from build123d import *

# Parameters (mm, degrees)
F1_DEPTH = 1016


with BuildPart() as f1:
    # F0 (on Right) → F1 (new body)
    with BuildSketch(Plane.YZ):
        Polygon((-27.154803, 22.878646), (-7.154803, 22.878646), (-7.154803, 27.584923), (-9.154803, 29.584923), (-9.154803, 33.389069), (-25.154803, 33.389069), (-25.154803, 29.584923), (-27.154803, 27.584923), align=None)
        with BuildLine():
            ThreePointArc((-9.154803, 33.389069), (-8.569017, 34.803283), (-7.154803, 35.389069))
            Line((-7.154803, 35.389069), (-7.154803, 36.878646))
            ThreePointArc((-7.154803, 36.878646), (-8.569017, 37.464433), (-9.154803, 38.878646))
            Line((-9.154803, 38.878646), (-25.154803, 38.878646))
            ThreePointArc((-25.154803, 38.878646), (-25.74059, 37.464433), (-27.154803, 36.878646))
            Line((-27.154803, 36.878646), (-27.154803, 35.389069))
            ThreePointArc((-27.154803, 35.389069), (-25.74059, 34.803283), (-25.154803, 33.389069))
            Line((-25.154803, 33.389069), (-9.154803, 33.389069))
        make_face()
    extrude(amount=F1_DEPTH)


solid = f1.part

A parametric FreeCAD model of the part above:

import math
import FreeCAD as App
import Part
import Sketcher

doc = App.newDocument("Part")
params = doc.addObject("Spreadsheet::Sheet", "Params")
for row, (alias, value) in enumerate([
    ("sketch1_radius", "1.999999 mm"),
    ("sketch1_width", "20 mm"),
    ("pad1_length", "1016 mm"),
], start=1):
    params.set(f"A{row}", alias)
    params.set(f"B{row}", "=" + value)
    params.setAlias(f"B{row}", alias)

body = doc.addObject("PartDesign::Body", "Body")

sketch1 = doc.addObject("Sketcher::SketchObject", "Sketch")
body.addObject(sketch1)
sketch1.AttachmentSupport = (doc.YZ_Plane, [""])
sketch1.MapMode = "FlatFace"
sketch1.addGeometry([
    Part.LineSegment(App.Vector(-27.2, 22.9, 0), App.Vector(-7.2, 22.9, 0)),
    Part.LineSegment(App.Vector(-7.2, 22.9, 0), App.Vector(-7.2, 27.6, 0)),
    Part.LineSegment(App.Vector(-7.2, 27.6, 0), App.Vector(-9.2, 29.6, 0)),
    Part.LineSegment(App.Vector(-9.2, 29.6, 0), App.Vector(-9.2, 33.4, 0)),
    Part.ArcOfCircle(Part.Circle(App.Vector(-7.2, 33.4, 0), App.Vector(0, 0, 1), 2), math.radians(90), math.radians(180)),
    Part.LineSegment(App.Vector(-7.2, 35.4, 0), App.Vector(-7.2, 36.9, 0)),
    Part.ArcOfCircle(Part.Circle(App.Vector(-7.2, 38.9, 0), App.Vector(0, 0, 1), 2), math.radians(-180), math.radians(-90)),
    Part.LineSegment(App.Vector(-9.2, 38.9, 0), App.Vector(-25.2, 38.9, 0)),
    Part.ArcOfCircle(Part.Circle(App.Vector(-27.2, 38.9, 0), App.Vector(0, 0, 1), 2), math.radians(-90), math.radians(0)),
    Part.LineSegment(App.Vector(-27.2, 36.9, 0), App.Vector(-27.2, 35.4, 0)),
    Part.ArcOfCircle(Part.Circle(App.Vector(-27.2, 33.4, 0), App.Vector(0, 0, 1), 2), math.radians(0), math.radians(90)),
    Part.LineSegment(App.Vector(-25.2, 33.4, 0), App.Vector(-25.2, 29.6, 0)),
    Part.LineSegment(App.Vector(-25.2, 29.6, 0), App.Vector(-27.2, 27.6, 0)),
    Part.LineSegment(App.Vector(-27.2, 27.6, 0), App.Vector(-27.2, 22.9, 0)),
], False)
sketch1.addConstraint([
    Sketcher.Constraint("Coincident", 0, 2, 1, 1),
    Sketcher.Constraint("Coincident", 1, 2, 2, 1),
    Sketcher.Constraint("Coincident", 2, 2, 3, 1),
    Sketcher.Constraint("Tangent", 3, 2, 4, 2),
    Sketcher.Constraint("Coincident", 4, 1, 5, 1),
    Sketcher.Constraint("Coincident", 5, 2, 6, 2),
    Sketcher.Constraint("Coincident", 6, 1, 7, 1),
    Sketcher.Constraint("Coincident", 7, 2, 8, 2),
    Sketcher.Constraint("Coincident", 8, 1, 9, 1),
    Sketcher.Constraint("Coincident", 9, 2, 10, 2),
    Sketcher.Constraint("Tangent", 10, 1, 11, 1),
    Sketcher.Constraint("Coincident", 11, 2, 12, 1),
    Sketcher.Constraint("Coincident", 12, 2, 13, 1),
    Sketcher.Constraint("Coincident", 13, 2, 0, 1),
    Sketcher.Constraint("Horizontal", 0),
    Sketcher.Constraint("Vertical", 1),
    Sketcher.Constraint("Vertical", 3),
    Sketcher.Constraint("Vertical", 5),
    Sketcher.Constraint("Horizontal", 7),
    Sketcher.Constraint("Vertical", 9),
    Sketcher.Constraint("Vertical", 11),
    Sketcher.Constraint("Vertical", 13),
    Sketcher.Constraint("Equal", 4, 6),
    Sketcher.Constraint("Equal", 6, 8),
    Sketcher.Constraint("Equal", 8, 10),
    Sketcher.Constraint("Perpendicular", 2, 12),
    Sketcher.Constraint("Horizontal", 6, 3, 8, 3),
    Sketcher.Constraint("Horizontal", 4, 3, 10, 3),
    Sketcher.Constraint("Horizontal", 8, 3, 6, 1),
    Sketcher.Constraint("Horizontal", 2, 2, 11, 2),
    Sketcher.Constraint("Horizontal", 1, 2, 12, 2),
    Sketcher.Constraint("Vertical", 4, 3, 6, 3),
    Sketcher.Constraint("Vertical", 8, 3, 10, 3),
    Sketcher.Constraint("Vertical", 6, 3, 0, 2),
    Sketcher.Constraint("Vertical", 1, 2, 4, 1),
    Sketcher.Constraint("Vertical", 10, 3, 8, 1),
    Sketcher.Constraint("Vertical", 9, 2, 12, 2),
    Sketcher.Constraint("Radius", 4, 1.999999),
    Sketcher.Constraint("DistanceX", 0, 1, 0, 2, 20.0),
    Sketcher.Constraint("DistanceY", 0, 2, 6, 3, 16.0),
    Sketcher.Constraint("DistanceY", 1, 1, 1, 2, 4.706277),
    Sketcher.Constraint("DistanceY", 3, 1, 3, 2, 3.804146),
    Sketcher.Constraint("DistanceY", -1, 1, 4, 3, 33.38907),
    Sketcher.Constraint("DistanceX", 4, 3, -1, 1, 7.154804),
])
sketch1.setExpression("Constraints[37]", "Params.sketch1_radius")
sketch1.setExpression("Constraints[38]", "Params.sketch1_width")
pad1 = doc.addObject("PartDesign::Pad", "Pad")
body.addObject(pad1)
pad1.Profile = sketch1
pad1.setExpression("Length", "Params.pad1_length")

doc.recompute()
